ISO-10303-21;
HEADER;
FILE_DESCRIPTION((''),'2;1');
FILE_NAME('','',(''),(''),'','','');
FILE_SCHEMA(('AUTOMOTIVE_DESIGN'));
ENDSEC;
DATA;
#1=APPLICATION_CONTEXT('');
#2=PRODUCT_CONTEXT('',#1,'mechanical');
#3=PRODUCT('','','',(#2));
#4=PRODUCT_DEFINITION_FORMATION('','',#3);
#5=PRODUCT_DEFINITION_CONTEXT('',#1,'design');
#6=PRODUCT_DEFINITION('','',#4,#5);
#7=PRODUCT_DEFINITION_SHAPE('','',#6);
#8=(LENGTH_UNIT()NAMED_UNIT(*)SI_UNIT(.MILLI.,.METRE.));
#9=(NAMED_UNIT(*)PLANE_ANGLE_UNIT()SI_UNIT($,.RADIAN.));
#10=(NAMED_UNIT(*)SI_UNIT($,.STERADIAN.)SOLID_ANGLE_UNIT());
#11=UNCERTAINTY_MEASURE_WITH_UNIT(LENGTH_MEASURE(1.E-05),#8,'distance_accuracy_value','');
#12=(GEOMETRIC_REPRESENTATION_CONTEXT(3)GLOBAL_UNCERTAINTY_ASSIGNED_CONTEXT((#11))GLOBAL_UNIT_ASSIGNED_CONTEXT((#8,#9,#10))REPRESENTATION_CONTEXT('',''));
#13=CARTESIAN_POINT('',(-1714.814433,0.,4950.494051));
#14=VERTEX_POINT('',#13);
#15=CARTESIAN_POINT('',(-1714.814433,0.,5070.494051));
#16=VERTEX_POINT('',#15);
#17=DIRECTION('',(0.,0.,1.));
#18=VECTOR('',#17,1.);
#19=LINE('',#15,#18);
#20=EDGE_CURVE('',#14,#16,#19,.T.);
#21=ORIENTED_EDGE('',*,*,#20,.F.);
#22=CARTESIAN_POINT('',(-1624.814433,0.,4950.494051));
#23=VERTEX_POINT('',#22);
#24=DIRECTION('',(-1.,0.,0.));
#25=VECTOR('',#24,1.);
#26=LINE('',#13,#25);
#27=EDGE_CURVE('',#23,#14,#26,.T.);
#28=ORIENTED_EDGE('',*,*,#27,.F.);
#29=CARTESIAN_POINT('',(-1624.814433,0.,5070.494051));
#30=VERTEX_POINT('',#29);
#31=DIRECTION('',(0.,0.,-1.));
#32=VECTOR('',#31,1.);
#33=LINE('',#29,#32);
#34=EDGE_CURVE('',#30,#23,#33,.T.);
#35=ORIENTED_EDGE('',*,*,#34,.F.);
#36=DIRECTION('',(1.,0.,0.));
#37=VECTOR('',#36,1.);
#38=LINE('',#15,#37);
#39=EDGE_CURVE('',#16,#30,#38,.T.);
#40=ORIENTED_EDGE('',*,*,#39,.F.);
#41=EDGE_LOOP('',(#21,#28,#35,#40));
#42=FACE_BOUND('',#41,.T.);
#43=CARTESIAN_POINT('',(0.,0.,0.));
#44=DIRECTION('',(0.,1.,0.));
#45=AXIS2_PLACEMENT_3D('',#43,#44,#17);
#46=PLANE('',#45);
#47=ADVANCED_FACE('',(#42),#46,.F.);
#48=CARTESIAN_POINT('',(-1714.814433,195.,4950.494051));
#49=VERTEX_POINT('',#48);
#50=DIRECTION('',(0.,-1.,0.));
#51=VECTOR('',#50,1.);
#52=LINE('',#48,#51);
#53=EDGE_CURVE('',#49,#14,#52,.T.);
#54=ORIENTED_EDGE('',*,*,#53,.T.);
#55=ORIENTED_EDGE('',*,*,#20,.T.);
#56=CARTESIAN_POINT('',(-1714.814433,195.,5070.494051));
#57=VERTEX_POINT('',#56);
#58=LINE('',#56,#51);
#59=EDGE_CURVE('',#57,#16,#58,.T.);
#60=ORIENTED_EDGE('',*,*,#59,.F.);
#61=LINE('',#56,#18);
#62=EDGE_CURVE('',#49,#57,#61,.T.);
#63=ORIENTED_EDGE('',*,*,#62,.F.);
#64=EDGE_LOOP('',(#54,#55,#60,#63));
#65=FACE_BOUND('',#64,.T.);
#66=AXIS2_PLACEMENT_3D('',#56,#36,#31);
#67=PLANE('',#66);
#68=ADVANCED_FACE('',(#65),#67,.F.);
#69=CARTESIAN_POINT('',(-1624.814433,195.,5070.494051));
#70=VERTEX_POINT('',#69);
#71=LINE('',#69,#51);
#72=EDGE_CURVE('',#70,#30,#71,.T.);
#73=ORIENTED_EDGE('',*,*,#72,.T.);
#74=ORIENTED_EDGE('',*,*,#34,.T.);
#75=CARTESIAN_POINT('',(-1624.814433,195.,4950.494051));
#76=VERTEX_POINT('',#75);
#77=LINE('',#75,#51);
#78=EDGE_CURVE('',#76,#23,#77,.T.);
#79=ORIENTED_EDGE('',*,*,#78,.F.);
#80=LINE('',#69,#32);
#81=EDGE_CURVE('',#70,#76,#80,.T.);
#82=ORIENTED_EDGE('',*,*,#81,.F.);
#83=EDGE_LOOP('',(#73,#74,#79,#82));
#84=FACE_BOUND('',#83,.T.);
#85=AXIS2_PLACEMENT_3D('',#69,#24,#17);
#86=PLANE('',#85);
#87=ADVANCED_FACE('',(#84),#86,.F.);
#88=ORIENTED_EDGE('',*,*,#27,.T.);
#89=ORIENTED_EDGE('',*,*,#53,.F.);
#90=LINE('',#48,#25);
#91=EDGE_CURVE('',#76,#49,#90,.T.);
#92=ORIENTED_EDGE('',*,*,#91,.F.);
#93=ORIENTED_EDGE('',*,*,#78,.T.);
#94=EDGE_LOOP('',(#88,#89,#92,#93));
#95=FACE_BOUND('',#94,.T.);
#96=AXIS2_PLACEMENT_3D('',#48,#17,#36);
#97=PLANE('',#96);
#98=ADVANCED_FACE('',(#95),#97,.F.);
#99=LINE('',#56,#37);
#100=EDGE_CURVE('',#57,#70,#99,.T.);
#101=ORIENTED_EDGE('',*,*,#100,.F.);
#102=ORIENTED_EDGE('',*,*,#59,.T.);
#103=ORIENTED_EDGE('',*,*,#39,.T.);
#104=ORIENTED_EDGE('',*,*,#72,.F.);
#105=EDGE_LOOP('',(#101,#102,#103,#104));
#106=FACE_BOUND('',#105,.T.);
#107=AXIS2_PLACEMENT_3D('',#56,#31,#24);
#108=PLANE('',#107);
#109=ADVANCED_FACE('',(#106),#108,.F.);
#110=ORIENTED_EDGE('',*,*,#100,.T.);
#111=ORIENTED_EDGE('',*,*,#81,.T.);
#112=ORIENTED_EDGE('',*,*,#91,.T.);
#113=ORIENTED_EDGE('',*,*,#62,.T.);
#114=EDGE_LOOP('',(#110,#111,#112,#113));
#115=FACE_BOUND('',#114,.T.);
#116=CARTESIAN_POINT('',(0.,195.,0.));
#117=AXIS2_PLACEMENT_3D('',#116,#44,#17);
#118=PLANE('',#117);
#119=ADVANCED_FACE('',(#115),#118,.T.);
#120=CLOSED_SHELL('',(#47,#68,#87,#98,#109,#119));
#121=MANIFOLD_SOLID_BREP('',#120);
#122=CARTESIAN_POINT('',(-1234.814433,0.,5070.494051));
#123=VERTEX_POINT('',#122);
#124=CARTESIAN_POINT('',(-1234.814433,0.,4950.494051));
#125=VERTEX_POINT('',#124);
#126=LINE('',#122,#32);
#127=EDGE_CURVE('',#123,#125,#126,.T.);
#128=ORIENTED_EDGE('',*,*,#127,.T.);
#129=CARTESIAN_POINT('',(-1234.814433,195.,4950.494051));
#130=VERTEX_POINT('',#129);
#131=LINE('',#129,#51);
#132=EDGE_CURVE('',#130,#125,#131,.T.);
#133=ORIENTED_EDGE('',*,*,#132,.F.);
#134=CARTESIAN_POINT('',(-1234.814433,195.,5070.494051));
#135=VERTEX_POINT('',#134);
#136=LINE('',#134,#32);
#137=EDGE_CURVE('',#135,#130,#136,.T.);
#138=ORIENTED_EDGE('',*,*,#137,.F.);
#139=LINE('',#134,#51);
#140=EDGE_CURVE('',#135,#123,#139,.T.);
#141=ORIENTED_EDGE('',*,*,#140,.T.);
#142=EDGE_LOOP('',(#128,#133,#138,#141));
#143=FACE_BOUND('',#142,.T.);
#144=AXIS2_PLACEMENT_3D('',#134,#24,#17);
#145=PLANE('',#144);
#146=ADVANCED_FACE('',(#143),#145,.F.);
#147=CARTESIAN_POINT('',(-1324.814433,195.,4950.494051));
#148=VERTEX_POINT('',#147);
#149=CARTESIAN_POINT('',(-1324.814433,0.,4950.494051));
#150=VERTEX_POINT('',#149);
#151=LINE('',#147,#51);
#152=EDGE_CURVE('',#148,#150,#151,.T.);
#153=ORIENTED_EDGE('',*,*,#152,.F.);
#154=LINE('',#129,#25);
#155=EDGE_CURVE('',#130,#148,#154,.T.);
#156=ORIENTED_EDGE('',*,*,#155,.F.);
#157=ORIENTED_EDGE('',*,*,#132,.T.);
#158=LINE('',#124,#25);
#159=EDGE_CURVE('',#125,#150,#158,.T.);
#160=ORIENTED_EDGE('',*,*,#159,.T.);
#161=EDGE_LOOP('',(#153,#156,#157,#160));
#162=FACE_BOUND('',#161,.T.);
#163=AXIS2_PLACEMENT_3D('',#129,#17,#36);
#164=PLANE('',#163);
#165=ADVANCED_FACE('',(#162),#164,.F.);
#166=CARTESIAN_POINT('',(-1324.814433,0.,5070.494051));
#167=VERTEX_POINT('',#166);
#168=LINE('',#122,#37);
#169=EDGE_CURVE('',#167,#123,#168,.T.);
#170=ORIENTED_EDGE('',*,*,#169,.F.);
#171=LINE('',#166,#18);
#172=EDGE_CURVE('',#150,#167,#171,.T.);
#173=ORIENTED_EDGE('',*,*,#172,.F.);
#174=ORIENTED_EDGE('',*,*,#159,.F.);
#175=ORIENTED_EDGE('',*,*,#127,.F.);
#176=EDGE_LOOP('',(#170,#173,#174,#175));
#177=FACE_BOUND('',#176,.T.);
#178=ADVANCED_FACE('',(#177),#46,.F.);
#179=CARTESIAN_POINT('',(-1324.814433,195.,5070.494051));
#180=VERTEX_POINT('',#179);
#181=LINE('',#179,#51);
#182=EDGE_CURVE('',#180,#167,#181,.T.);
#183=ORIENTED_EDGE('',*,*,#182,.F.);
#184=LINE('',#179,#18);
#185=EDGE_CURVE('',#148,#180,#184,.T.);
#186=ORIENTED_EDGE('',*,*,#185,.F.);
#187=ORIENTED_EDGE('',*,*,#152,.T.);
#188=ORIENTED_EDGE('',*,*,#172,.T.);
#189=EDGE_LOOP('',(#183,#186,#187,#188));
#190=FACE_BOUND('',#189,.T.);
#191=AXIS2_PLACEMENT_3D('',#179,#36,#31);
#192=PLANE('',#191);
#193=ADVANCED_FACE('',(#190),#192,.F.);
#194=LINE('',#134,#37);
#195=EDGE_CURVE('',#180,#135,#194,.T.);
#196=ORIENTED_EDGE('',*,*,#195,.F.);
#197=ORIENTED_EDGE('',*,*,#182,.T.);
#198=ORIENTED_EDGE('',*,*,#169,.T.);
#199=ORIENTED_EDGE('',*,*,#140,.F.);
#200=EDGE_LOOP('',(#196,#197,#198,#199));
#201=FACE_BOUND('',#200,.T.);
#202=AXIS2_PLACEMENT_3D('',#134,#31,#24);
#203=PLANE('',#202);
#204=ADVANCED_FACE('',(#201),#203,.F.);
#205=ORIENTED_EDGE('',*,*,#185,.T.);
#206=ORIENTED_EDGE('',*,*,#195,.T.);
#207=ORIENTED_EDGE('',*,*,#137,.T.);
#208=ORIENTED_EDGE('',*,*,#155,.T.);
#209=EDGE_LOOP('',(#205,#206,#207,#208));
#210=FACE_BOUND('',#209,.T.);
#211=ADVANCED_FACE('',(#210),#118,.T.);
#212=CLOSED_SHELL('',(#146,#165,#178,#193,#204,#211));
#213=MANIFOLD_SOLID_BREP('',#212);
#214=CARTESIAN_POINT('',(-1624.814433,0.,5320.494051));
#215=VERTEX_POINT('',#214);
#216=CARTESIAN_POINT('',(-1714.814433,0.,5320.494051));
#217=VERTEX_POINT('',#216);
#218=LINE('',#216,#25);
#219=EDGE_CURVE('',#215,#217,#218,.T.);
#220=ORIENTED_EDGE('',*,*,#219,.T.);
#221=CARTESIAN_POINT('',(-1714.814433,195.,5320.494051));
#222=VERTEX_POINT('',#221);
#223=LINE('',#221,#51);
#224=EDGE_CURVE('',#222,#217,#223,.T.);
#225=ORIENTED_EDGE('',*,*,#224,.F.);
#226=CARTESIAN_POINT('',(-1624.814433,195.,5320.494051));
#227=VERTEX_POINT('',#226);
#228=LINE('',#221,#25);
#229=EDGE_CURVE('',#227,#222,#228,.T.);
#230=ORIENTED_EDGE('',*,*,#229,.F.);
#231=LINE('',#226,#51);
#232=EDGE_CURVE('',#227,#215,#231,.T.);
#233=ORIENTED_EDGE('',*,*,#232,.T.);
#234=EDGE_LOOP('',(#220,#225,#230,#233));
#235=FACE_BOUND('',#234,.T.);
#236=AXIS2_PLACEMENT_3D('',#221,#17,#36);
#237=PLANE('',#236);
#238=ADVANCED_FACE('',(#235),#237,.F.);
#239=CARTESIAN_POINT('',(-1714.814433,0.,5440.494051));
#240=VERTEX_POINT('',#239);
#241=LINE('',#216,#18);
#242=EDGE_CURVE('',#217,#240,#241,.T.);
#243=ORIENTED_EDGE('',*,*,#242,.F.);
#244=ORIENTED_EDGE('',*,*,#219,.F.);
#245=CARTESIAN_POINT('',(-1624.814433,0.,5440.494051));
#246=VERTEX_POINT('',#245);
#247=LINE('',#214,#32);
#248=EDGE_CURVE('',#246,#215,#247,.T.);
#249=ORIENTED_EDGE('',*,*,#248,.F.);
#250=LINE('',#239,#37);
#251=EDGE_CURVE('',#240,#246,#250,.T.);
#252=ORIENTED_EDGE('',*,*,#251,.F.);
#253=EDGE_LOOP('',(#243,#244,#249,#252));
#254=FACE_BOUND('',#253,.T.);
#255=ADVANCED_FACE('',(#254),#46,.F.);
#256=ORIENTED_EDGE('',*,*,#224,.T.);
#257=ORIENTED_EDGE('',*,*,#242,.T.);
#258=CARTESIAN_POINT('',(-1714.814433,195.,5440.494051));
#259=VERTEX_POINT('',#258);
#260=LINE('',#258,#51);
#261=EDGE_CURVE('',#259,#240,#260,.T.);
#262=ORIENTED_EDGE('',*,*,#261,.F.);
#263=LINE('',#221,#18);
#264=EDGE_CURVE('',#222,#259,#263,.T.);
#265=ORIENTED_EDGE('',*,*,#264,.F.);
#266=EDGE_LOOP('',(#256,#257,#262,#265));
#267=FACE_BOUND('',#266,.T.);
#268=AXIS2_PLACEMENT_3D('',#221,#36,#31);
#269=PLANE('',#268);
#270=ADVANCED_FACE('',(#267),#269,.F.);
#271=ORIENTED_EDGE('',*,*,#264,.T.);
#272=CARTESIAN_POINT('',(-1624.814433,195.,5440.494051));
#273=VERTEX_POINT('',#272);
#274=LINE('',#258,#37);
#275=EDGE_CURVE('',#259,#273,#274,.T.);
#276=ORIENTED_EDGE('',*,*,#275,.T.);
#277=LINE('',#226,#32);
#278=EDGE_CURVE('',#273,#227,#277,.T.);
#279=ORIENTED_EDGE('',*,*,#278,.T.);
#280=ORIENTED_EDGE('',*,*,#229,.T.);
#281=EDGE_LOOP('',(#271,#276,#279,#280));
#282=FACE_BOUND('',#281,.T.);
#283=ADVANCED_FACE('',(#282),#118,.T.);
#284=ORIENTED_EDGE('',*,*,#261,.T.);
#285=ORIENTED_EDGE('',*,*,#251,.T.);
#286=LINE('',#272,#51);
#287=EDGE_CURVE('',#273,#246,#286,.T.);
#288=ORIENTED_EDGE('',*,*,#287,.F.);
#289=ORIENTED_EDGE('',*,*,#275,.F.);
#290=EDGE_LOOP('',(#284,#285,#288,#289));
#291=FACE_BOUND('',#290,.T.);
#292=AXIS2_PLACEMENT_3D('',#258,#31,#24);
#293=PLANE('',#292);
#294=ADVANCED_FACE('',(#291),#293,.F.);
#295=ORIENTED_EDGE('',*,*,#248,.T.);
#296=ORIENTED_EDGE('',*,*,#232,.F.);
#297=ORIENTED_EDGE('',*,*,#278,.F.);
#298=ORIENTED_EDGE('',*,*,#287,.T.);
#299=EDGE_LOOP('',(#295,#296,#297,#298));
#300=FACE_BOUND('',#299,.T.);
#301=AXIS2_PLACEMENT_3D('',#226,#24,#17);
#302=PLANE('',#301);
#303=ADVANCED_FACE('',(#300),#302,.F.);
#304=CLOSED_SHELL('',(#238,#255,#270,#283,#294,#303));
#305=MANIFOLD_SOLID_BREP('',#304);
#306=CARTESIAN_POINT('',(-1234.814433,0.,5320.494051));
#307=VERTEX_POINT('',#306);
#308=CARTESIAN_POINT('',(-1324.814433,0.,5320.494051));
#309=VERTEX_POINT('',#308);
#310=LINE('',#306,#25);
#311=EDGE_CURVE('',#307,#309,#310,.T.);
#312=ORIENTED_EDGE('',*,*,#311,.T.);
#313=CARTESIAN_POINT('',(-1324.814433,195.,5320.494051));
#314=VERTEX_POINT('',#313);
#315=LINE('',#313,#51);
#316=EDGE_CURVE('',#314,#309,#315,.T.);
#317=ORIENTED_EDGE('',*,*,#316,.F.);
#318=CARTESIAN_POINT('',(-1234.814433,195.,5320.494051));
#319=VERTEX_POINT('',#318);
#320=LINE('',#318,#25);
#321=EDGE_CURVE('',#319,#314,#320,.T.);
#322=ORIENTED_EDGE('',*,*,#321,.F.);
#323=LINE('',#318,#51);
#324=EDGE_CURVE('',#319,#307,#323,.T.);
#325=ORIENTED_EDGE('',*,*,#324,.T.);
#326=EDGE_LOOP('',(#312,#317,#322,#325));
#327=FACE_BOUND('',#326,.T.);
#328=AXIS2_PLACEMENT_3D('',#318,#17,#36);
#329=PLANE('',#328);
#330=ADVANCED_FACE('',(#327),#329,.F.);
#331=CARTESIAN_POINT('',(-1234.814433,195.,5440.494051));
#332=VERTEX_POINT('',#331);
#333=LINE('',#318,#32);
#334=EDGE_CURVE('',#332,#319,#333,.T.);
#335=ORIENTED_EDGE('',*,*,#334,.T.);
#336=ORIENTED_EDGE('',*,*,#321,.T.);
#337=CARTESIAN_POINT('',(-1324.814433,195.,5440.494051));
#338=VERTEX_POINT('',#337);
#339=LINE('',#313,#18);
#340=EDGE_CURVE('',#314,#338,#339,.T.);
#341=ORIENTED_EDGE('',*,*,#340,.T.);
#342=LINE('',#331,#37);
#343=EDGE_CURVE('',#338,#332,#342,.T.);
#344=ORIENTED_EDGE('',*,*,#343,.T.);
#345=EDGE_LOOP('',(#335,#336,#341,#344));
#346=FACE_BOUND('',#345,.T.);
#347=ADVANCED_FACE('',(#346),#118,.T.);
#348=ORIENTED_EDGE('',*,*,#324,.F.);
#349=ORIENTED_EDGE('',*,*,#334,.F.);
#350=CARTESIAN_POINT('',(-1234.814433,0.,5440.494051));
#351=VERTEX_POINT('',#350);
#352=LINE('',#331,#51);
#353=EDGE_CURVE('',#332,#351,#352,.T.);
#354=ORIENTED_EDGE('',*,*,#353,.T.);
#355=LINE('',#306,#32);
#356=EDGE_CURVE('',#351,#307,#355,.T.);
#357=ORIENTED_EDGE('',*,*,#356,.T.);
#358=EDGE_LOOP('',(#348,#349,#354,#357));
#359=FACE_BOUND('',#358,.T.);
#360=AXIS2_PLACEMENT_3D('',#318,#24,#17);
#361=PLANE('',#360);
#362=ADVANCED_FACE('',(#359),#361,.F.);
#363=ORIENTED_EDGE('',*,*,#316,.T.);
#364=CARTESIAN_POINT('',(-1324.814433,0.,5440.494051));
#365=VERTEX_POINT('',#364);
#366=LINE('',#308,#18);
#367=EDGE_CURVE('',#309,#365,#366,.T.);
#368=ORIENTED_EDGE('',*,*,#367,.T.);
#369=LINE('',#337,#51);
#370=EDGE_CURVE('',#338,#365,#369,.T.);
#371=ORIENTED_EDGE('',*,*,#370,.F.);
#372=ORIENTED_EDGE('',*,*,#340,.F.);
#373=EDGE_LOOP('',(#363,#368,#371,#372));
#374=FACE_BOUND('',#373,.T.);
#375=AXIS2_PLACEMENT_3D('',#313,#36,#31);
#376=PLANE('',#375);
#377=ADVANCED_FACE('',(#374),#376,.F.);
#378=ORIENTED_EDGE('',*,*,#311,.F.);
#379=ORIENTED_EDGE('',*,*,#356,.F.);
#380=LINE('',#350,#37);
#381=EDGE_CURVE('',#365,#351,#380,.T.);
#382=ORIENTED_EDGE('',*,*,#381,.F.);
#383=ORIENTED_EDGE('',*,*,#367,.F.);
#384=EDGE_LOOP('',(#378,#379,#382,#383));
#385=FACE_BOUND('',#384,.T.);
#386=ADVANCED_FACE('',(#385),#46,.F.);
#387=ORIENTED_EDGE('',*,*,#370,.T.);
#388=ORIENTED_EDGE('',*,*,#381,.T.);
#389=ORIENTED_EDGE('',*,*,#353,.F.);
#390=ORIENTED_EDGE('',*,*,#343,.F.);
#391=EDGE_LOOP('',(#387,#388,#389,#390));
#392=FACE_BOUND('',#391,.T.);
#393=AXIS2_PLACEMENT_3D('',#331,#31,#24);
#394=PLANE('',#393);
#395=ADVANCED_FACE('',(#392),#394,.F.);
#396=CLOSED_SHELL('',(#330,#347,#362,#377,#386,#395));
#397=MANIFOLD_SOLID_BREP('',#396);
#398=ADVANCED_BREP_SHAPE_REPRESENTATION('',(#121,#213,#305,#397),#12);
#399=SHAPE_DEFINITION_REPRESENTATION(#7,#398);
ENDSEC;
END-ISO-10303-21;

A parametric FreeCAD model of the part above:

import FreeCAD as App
import Part
import Sketcher
from FreeCAD import Vector

doc = App.newDocument("Part")
body = doc.addObject("PartDesign::Body", "Body")

# Sketch on XZ plane
sketch1 = body.newObject("Sketcher::SketchObject", "Sketch")
sketch1.AttachmentSupport = (doc.getObject("XZ_Plane"), [""])
sketch1.MapMode = "FlatFace"
sketch1.addGeometry(Part.LineSegment(Vector(-1715, 5320, 0), Vector(-1715, 5440, 0)), False)
sketch1.addGeometry(Part.LineSegment(Vector(-1715, 5440, 0), Vector(-1625, 5440, 0)), False)
sketch1.addGeometry(Part.LineSegment(Vector(-1625, 5440, 0), Vector(-1625, 5320, 0)), False)
sketch1.addGeometry(Part.LineSegment(Vector(-1625, 5320, 0), Vector(-1715, 5320, 0)), False)
sketch1.addConstraint(Sketcher.Constraint("Coincident", 0, 2, 1, 1))
sketch1.addConstraint(Sketcher.Constraint("Coincident", 1, 2, 2, 1))
sketch1.addConstraint(Sketcher.Constraint("Coincident", 2, 2, 3, 1))
sketch1.addConstraint(Sketcher.Constraint("Coincident", 3, 2, 0, 1))
sketch1.addConstraint(Sketcher.Constraint("Vertical", 0))
sketch1.addConstraint(Sketcher.Constraint("Horizontal", 1))
sketch1.addConstraint(Sketcher.Constraint("Vertical", 2))
sketch1.addConstraint(Sketcher.Constraint("Horizontal", 3))
sketch1.addConstraint(Sketcher.Constraint("DistanceX", 1, 1, 1, 2, 90.0))
sketch1.addConstraint(Sketcher.Constraint("DistanceY", 0, 1, 0, 2, 120.0))
sketch1.addConstraint(Sketcher.Constraint("DistanceY", -1, 1, 0, 2, 5440.494051))
sketch1.addConstraint(Sketcher.Constraint("DistanceX", 0, 2, -1, 1, 1714.814433))
pad1 = body.newObject("PartDesign::Pad", "Pad")
pad1.Profile = sketch1
pad1.Length = 195
pad1.Reversed = True
body2 = doc.addObject("PartDesign::Body", "Body001")

# Sketch on XZ plane
sketch2 = body2.newObject("Sketcher::SketchObject", "Sketch001")
sketch2.AttachmentSupport = (doc.getObject("XZ_Plane001"), [""])
sketch2.MapMode = "FlatFace"
sketch2.addGeometry(Part.LineSegment(Vector(-1715, 4950, 0), Vector(-1715, 5070, 0)), False)
sketch2.addGeometry(Part.LineSegment(Vector(-1715, 5070, 0), Vector(-1625, 5070, 0)), False)
sketch2.addGeometry(Part.LineSegment(Vector(-1625, 5070, 0), Vector(-1625, 4950, 0)), False)
sketch2.addGeometry(Part.LineSegment(Vector(-1625, 4950, 0), Vector(-1715, 4950, 0)), False)
sketch2.addConstraint(Sketcher.Constraint("Coincident", 0, 2, 1, 1))
sketch2.addConstraint(Sketcher.Constraint("Coincident", 1, 2, 2, 1))
sketch2.addConstraint(Sketcher.Constraint("Coincident", 2, 2, 3, 1))
sketch2.addConstraint(Sketcher.Constraint("Coincident", 3, 2, 0, 1))
sketch2.addConstraint(Sketcher.Constraint("Vertical", 0))
sketch2.addConstraint(Sketcher.Constraint("Horizontal", 1))
sketch2.addConstraint(Sketcher.Constraint("Vertical", 2))
sketch2.addConstraint(Sketcher.Constraint("Horizontal", 3))
sketch2.addConstraint(Sketcher.Constraint("DistanceX", 1, 1, 1, 2, 90.0))
sketch2.addConstraint(Sketcher.Constraint("DistanceY", 0, 1, 0, 2, 120.0))
sketch2.addConstraint(Sketcher.Constraint("DistanceY", -1, 1, 0, 2, 5070.494051))
sketch2.addConstraint(Sketcher.Constraint("DistanceX", 0, 2, -1, 1, 1714.814433))
pad2 = body2.newObject("PartDesign::Pad", "Pad001")
pad2.Profile = sketch2
pad2.Length = 195
pad2.Reversed = True
body3 = doc.addObject("PartDesign::Body", "Body002")

# Sketch on XZ plane
sketch3 = body3.newObject("Sketcher::SketchObject", "Sketch002")
sketch3.AttachmentSupport = (doc.getObject("XZ_Plane002"), [""])
sketch3.MapMode = "FlatFace"
sketch3.addGeometry(Part.LineSegment(Vector(-1325, 4950, 0), Vector(-1325, 5070, 0)), False)
sketch3.addGeometry(Part.LineSegment(Vector(-1325, 5070, 0), Vector(-1235, 5070, 0)), False)
sketch3.addGeometry(Part.LineSegment(Vector(-1235, 5070, 0), Vector(-1235, 4950, 0)), False)
sketch3.addGeometry(Part.LineSegment(Vector(-1235, 4950, 0), Vector(-1325, 4950, 0)), False)
sketch3.addConstraint(Sketcher.Constraint("Coincident", 0, 2, 1, 1))
sketch3.addConstraint(Sketcher.Constraint("Coincident", 1, 2, 2, 1))
sketch3.addConstraint(Sketcher.Constraint("Coincident", 2, 2, 3, 1))
sketch3.addConstraint(Sketcher.Constraint("Coincident", 3, 2, 0, 1))
sketch3.addConstraint(Sketcher.Constraint("Vertical", 0))
sketch3.addConstraint(Sketcher.Constraint("Horizontal", 1))
sketch3.addConstraint(Sketcher.Constraint("Vertical", 2))
sketch3.addConstraint(Sketcher.Constraint("Horizontal", 3))
sketch3.addConstraint(Sketcher.Constraint("DistanceX", 1, 1, 1, 2, 90.0))
sketch3.addConstraint(Sketcher.Constraint("DistanceY", 0, 1, 0, 2, 120.0))
sketch3.addConstraint(Sketcher.Constraint("DistanceY", -1, 1, 0, 2, 5070.494051))
sketch3.addConstraint(Sketcher.Constraint("DistanceX", 0, 2, -1, 1, 1324.814433))
pad3 = body3.newObject("PartDesign::Pad", "Pad002")
pad3.Profile = sketch3
pad3.Length = 195
pad3.Reversed = True
body4 = doc.addObject("PartDesign::Body", "Body003")

# Sketch on XZ plane
sketch4 = body4.newObject("Sketcher::SketchObject", "Sketch003")
sketch4.AttachmentSupport = (doc.getObject("XZ_Plane003"), [""])
sketch4.MapMode = "FlatFace"
sketch4.addGeometry(Part.LineSegment(Vector(-1325, 5320, 0), Vector(-1325, 5440, 0)), False)
sketch4.addGeometry(Part.LineSegment(Vector(-1325, 5440, 0), Vector(-1235, 5440, 0)), False)
sketch4.addGeometry(Part.LineSegment(Vector(-1235, 5440, 0), Vector(-1235, 5320, 0)), False)
sketch4.addGeometry(Part.LineSegment(Vector(-1235, 5320, 0), Vector(-1325, 5320, 0)), False)
sketch4.addConstraint(Sketcher.Constraint("Coincident", 0, 2, 1, 1))
sketch4.addConstraint(Sketcher.Constraint("Coincident", 1, 2, 2, 1))
sketch4.addConstraint(Sketcher.Constraint("Coincident", 2, 2, 3, 1))
sketch4.addConstraint(Sketcher.Constraint("Coincident", 3, 2, 0, 1))
sketch4.addConstraint(Sketcher.Constraint("Vertical", 0))
sketch4.addConstraint(Sketcher.Constraint("Horizontal", 1))
sketch4.addConstraint(Sketcher.Constraint("Vertical", 2))
sketch4.addConstraint(Sketcher.Constraint("Horizontal", 3))
sketch4.addConstraint(Sketcher.Constraint("DistanceX", 1, 1, 1, 2, 90.0))
sketch4.addConstraint(Sketcher.Constraint("DistanceY", 0, 1, 0, 2, 120.0))
sketch4.addConstraint(Sketcher.Constraint("DistanceY", -1, 1, 0, 2, 5440.494051))
sketch4.addConstraint(Sketcher.Constraint("DistanceX", 0, 2, -1, 1, 1324.814433))
pad4 = body4.newObject("PartDesign::Pad", "Pad003")
pad4.Profile = sketch4
pad4.Length = 195
pad4.Reversed = True

doc.recompute()
